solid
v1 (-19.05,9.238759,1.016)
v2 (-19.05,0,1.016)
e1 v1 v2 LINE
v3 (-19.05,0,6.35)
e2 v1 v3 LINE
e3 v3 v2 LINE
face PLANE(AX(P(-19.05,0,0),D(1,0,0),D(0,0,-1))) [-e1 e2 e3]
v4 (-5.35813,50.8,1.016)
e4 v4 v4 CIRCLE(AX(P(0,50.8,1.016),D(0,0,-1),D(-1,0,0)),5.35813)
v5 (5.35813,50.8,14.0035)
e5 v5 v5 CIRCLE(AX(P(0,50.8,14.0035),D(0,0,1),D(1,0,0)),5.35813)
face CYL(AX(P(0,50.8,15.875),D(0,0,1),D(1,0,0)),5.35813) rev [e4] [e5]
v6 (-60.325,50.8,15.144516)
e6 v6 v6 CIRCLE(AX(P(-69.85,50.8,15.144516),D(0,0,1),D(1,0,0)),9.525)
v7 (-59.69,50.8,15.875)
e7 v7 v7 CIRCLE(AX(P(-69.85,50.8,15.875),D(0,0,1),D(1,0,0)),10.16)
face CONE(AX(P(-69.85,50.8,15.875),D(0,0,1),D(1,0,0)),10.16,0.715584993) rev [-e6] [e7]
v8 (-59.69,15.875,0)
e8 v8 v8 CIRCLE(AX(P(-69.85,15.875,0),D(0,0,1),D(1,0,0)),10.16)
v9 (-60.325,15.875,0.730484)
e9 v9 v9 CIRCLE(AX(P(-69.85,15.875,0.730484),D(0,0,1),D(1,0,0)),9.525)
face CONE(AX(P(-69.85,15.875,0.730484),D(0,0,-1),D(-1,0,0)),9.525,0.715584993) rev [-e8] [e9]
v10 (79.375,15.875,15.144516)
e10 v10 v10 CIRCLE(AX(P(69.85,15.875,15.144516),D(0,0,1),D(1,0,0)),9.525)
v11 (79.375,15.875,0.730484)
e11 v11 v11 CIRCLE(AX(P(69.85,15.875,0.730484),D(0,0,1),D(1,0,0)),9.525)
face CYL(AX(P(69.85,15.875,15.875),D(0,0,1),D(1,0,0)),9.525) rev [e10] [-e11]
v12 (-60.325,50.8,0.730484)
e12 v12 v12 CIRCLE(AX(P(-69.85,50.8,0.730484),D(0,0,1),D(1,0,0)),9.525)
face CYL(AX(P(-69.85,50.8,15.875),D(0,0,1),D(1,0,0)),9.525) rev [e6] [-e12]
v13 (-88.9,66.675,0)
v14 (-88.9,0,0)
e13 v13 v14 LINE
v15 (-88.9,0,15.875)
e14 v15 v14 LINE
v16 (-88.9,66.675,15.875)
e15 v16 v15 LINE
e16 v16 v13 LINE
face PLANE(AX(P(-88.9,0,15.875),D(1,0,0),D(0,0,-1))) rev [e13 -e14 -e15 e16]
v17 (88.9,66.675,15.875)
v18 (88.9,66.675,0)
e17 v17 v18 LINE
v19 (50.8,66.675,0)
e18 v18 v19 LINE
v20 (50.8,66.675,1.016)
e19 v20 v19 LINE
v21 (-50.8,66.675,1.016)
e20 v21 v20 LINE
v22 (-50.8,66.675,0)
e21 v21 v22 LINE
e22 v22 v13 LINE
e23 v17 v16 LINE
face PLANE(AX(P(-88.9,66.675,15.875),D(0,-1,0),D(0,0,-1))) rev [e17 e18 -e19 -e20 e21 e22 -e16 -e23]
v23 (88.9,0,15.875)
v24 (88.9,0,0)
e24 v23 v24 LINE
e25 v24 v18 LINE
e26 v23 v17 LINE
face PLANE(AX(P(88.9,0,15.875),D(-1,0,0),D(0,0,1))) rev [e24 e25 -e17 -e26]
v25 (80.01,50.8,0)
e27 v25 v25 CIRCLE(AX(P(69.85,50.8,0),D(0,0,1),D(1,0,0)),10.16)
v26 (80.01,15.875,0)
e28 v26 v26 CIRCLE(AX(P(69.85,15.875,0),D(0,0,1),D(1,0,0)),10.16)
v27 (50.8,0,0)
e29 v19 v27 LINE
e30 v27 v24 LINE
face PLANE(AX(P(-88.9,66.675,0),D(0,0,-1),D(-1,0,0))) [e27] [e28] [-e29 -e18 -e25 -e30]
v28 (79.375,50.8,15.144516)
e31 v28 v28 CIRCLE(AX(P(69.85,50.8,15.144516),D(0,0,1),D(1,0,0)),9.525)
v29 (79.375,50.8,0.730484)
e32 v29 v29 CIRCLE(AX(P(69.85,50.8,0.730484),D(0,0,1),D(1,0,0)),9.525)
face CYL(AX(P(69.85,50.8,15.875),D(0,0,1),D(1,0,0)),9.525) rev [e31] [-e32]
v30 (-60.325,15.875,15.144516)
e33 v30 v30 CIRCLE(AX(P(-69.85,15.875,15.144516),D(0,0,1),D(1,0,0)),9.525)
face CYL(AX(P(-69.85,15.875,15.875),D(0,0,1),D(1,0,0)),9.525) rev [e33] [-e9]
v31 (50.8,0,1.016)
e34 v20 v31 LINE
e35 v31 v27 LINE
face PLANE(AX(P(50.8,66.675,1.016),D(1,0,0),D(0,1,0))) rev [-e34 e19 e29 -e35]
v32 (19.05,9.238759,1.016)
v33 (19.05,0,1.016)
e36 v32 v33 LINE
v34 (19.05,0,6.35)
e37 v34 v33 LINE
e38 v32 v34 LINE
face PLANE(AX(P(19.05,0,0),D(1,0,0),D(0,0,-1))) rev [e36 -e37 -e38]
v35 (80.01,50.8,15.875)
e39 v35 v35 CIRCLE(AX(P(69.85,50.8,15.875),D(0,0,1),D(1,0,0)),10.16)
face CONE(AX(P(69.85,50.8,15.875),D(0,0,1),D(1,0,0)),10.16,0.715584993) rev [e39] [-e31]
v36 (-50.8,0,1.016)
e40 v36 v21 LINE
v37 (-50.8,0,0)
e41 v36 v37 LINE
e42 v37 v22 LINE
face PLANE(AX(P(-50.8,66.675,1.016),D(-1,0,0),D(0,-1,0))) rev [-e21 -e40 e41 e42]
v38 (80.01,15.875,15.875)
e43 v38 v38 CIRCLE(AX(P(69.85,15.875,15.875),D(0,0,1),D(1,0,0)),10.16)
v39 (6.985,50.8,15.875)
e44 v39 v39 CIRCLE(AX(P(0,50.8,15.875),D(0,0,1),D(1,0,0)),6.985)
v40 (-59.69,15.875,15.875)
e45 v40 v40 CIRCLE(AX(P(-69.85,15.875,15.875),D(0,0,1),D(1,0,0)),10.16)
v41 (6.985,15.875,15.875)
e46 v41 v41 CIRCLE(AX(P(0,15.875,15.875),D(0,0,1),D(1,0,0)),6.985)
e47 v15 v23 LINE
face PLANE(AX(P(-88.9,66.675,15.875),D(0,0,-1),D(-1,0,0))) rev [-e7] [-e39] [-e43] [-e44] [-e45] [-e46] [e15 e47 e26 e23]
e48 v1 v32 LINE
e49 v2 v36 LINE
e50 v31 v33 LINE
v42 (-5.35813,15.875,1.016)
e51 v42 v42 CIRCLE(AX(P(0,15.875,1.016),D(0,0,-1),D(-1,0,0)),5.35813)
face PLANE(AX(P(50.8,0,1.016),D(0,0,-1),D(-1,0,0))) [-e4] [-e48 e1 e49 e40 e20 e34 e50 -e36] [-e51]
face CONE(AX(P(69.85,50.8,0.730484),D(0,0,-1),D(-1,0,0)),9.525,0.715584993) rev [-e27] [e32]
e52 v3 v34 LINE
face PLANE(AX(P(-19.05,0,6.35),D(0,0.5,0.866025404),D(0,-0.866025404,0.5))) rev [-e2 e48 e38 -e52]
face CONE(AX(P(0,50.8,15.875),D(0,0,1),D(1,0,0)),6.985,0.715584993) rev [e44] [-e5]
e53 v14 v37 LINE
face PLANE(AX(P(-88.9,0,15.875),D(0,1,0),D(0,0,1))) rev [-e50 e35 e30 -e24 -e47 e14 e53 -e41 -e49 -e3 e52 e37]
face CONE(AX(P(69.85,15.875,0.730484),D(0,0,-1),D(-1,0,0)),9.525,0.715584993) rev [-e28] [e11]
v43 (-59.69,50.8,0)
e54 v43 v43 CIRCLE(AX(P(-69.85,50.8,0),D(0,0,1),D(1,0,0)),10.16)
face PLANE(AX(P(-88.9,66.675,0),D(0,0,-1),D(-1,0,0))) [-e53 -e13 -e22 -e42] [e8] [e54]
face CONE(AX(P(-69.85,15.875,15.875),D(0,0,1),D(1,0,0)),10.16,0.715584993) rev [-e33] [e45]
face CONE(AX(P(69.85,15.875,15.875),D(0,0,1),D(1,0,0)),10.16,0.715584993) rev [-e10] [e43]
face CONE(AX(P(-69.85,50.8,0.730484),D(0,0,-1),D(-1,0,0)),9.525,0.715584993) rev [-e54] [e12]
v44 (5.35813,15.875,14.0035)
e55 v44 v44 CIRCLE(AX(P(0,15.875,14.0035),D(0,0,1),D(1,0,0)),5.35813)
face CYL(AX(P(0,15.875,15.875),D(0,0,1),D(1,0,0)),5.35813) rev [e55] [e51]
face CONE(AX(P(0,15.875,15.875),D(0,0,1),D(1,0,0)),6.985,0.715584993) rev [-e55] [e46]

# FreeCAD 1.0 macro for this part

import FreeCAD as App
import Part
import Sketcher
Q = App.Units.Quantity

doc = App.newDocument("Part")
body = doc.addObject("PartDesign::Body", "Body")

sketch1 = body.newObject("Sketcher::SketchObject", "Sketch")
sketch1.AttachmentSupport = (doc.getObject("XY_Plane"), [""])
sketch1.MapMode = "FlatFace"
sketch1.addGeometry([
    Part.LineSegment(App.Vector(-89, 67, 0), App.Vector(-89, 0, 0)),
    Part.LineSegment(App.Vector(-89, 0, 0), App.Vector(89, 0, 0)),
    Part.LineSegment(App.Vector(89, 0, 0), App.Vector(89, 67, 0)),
    Part.LineSegment(App.Vector(89, 67, 0), App.Vector(-89, 67, 0)),
], False)
sketch1.addConstraint([
    Sketcher.Constraint("Coincident", 0, 2, 1, 1),
    Sketcher.Constraint("Coincident", 1, 2, 2, 1),
    Sketcher.Constraint("Coincident", 2, 2, 3, 1),
    Sketcher.Constraint("Coincident", 3, 2, 0, 1),
    Sketcher.Constraint("Vertical", 0),
    Sketcher.Constraint("Horizontal", 1),
    Sketcher.Constraint("Vertical", 2),
    Sketcher.Constraint("Horizontal", 3),
    Sketcher.Constraint("Symmetric", 0, 2, 1, 2, -1, 1),
    Sketcher.Constraint("DistanceX", 1, 1, 1, 2, Q("7 in")),
    Sketcher.Constraint("DistanceY", 0, 2, 0, 1, Q("2.625 in")),
])
pad1 = body.newObject("PartDesign::Pad", "Pad")
pad1.Profile = sketch1
pad1.Length = Q("0.625 in")

sketch2 = body.newObject("Sketcher::SketchObject", "Sketch001")
sketch2.AttachmentSupport = (doc.getObject("YZ_Plane"), [""])
sketch2.MapMode = "FlatFace"
sketch2.AttachmentOffset = App.Placement(App.Vector(0, 0, -2.75 * 25.4), App.Rotation())
sketch2.addGeometry([
    Part.LineSegment(App.Vector(50.8, 0, 0), App.Vector(50.8, 15.9, 0)),
    Part.LineSegment(App.Vector(50.8, 15.9, 0), App.Vector(40.6, 15.9, 0)),
    Part.LineSegment(App.Vector(40.6, 15.9, 0), App.Vector(41.3, 15.1, 0)),
    Part.LineSegment(App.Vector(41.3, 15.1, 0), App.Vector(41.3, 0.7, 0)),
    Part.LineSegment(App.Vector(41.3, 0.7, 0), App.Vector(40.6, 0, 0)),
    Part.LineSegment(App.Vector(40.6, 0, 0), App.Vector(50.8, 0, 0)),
], False)
sketch2.addGeometry(Part.LineSegment(App.Vector(50.8, 15.9, 0), App.Vector(50.8, 0, 0)), True)
sketch2.addConstraint([
    Sketcher.Constraint("Coincident", 0, 2, 1, 1),
    Sketcher.Constraint("Coincident", 1, 2, 2, 1),
    Sketcher.Constraint("Coincident", 2, 2, 3, 1),
    Sketcher.Constraint("Coincident", 3, 2, 4, 1),
    Sketcher.Constraint("Coincident", 4, 2, 5, 1),
    Sketcher.Constraint("Coincident", 5, 2, 0, 1),
    Sketcher.Constraint("Vertical", 0),
    Sketcher.Constraint("Horizontal", 1),
    Sketcher.Constraint("Vertical", 3),
    Sketcher.Constraint("Horizontal", 5),
    Sketcher.Constraint("Vertical", 6),
    Sketcher.Constraint("Coincident", 6, 1, 0, 2),
    Sketcher.Constraint("PointOnObject", 4, 2, -1),
    Sketcher.Constraint("PointOnObject", 6, 2, -1),
    Sketcher.Constraint("Vertical", 1, 2, 4, 2),
    Sketcher.Constraint("Equal", 2, 4),
    Sketcher.Constraint("DistanceX", 1, 2, 1, 1, Q("0.4 in")),
    Sketcher.Constraint("DistanceX", -1, 1, 0, 2, Q("2 in")),
    Sketcher.Constraint("Angle", 2, Q("-49 deg")),
    Sketcher.Constraint("DistanceY", 0, 1, 0, 2, Q("0.625 in")),
    Sketcher.Constraint("DistanceX", -1, 1, 2, 2, Q("1.625 in")),
])
groove = body.newObject("PartDesign::Groove", "Groove")
groove.Profile = sketch2
groove.ReferenceAxis = (sketch2, ["Axis0"])
groove.Angle = 360
doc.recompute()

linearpattern = body.newObject("PartDesign::LinearPattern", "LinearPattern")
linearpattern.Originals = [groove]
linearpattern.Direction = (doc.getObject("Y_Axis"), [""])
linearpattern.Mode = "offset"
linearpattern.Offset = Q("1.375 in")
linearpattern.Occurrences = 2
linearpattern.Reversed = True
body.Tip = linearpattern
doc.recompute()

linearpattern2 = body.newObject("PartDesign::LinearPattern", "LinearPattern001")
linearpattern2.Originals = [groove]
linearpattern2.Direction = (doc.getObject("X_Axis"), [""])
linearpattern2.Mode = "offset"
linearpattern2.Offset = Q("5.5 in")
linearpattern2.Occurrences = 2
body.Tip = linearpattern2
doc.recompute()

datumline = body.newObject("PartDesign::Line", "DatumLine")
datumline.Placement = App.Placement(App.Vector(0, 0, 0), App.Rotation(App.Vector(0, 0, 1), App.Vector(0.9701425, -0.242535625, 0)))
linearpattern3 = body.newObject("PartDesign::LinearPattern", "LinearPattern002")
linearpattern3.Originals = [groove]
linearpattern3.Direction = (datumline, [""])
linearpattern3.Mode = "offset"
linearpattern3.Offset = 143.999464
linearpattern3.Occurrences = 2
body.Tip = linearpattern3

sketch3 = body.newObject("Sketcher::SketchObject", "Sketch002")
sketch3.AttachmentSupport = (doc.getObject("XY_Plane"), [""])
sketch3.MapMode = "FlatFace"
sketch3.addGeometry([
    Part.LineSegment(App.Vector(51, 67, 0), App.Vector(51, 0, 0)),
    Part.LineSegment(App.Vector(51, 0, 0), App.Vector(-51, 0, 0)),
    Part.LineSegment(App.Vector(-51, 0, 0), App.Vector(-51, 67, 0)),
    Part.LineSegment(App.Vector(-51, 67, 0), App.Vector(51, 67, 0)),
], False)
sketch3.addConstraint([
    Sketcher.Constraint("Coincident", 0, 2, 1, 1),
    Sketcher.Constraint("Coincident", 1, 2, 2, 1),
    Sketcher.Constraint("Coincident", 2, 2, 3, 1),
    Sketcher.Constraint("Coincident", 3, 2, 0, 1),
    Sketcher.Constraint("Vertical", 0),
    Sketcher.Constraint("Horizontal", 1),
    Sketcher.Constraint("Vertical", 2),
    Sketcher.Constraint("Horizontal", 3),
    Sketcher.Constraint("Symmetric", 0, 2, 1, 2, -1, 1),
    Sketcher.Constraint("DistanceX", 1, 2, 1, 1, Q("4 in")),
    Sketcher.Constraint("DistanceY", 0, 2, 0, 1, Q("2.625 in")),
])
pocket1 = body.newObject("PartDesign::Pocket", "Pocket")
pocket1.Profile = sketch3
pocket1.Length = Q("0.04 in")
pocket1.Reversed = True

sketch4 = body.newObject("Sketcher::SketchObject", "Sketch003")
sketch4.AttachmentSupport = (doc.getObject("YZ_Plane"), [""])
sketch4.MapMode = "FlatFace"
sketch4.addGeometry([
    Part.LineSegment(App.Vector(11, 0, 0), App.Vector(0, 6, 0)),
    Part.LineSegment(App.Vector(0, 6, 0), App.Vector(0, 0, 0)),
    Part.LineSegment(App.Vector(0, 0, 0), App.Vector(11, 0, 0)),
], False)
sketch4.addConstraint([
    Sketcher.Constraint("Coincident", 0, 2, 1, 1),
    Sketcher.Constraint("Coincident", 1, 2, 2, 1),
    Sketcher.Constraint("Coincident", 2, 2, 0, 1),
    Sketcher.Constraint("Vertical", 1),
    Sketcher.Constraint("Horizontal", 2),
    Sketcher.Constraint("Coincident", 1, 2, -1, 1),
    Sketcher.Constraint("Angle", 0, Q("150 deg")),
    Sketcher.Constraint("Distance", 0, Q("0.5 in")),
])
pocket2 = body.newObject("PartDesign::Pocket", "Pocket001")
pocket2.Profile = sketch4
pocket2.Length = Q("1.5 in")
pocket2.Midplane = True

sketch5 = body.newObject("Sketcher::SketchObject", "Sketch004")
sketch5.AttachmentSupport = (doc.getObject("XY_Plane"), [""])
sketch5.MapMode = "FlatFace"
sketch5.AttachmentOffset = App.Placement(App.Vector(0, 0, 0.625 * 25.4), App.Rotation())
sketch5.addGeometry([
    Part.Circle(App.Vector(0, 51, 0), App.Vector(0, 0, 1), 5),
    Part.Circle(App.Vector(0, 16, 0), App.Vector(0, 0, 1), 5),
], False)
sketch5.addConstraint([
    Sketcher.Constraint("Equal", 0, 1),
    Sketcher.Constraint("PointOnObject", 0, 3, -2),
    Sketcher.Constraint("PointOnObject", 1, 3, -2),
    Sketcher.Constraint("DistanceY", -1, 1, 0, 3, Q("2 in")),
    Sketcher.Constraint("Diameter", 0, Q("0.4219 in")),
    Sketcher.Constraint("DistanceY", -1, 1, 1, 3, Q("0.625 in")),
])
doc.recompute()
hole = body.newObject("PartDesign::Hole", "Hole")
hole.Profile = sketch5
hole.ThreadType = "None"
hole.Diameter = Q("0.4219 in")
hole.DepthType = "Dimension"
hole.Depth = Q("0.585 in")
hole.DrillPoint = "Flat"
hole.HoleCutType = "Countersink"
hole.HoleCutDiameter = Q("0.55 in")
hole.HoleCutCountersinkAngle = 82

doc.recompute()
